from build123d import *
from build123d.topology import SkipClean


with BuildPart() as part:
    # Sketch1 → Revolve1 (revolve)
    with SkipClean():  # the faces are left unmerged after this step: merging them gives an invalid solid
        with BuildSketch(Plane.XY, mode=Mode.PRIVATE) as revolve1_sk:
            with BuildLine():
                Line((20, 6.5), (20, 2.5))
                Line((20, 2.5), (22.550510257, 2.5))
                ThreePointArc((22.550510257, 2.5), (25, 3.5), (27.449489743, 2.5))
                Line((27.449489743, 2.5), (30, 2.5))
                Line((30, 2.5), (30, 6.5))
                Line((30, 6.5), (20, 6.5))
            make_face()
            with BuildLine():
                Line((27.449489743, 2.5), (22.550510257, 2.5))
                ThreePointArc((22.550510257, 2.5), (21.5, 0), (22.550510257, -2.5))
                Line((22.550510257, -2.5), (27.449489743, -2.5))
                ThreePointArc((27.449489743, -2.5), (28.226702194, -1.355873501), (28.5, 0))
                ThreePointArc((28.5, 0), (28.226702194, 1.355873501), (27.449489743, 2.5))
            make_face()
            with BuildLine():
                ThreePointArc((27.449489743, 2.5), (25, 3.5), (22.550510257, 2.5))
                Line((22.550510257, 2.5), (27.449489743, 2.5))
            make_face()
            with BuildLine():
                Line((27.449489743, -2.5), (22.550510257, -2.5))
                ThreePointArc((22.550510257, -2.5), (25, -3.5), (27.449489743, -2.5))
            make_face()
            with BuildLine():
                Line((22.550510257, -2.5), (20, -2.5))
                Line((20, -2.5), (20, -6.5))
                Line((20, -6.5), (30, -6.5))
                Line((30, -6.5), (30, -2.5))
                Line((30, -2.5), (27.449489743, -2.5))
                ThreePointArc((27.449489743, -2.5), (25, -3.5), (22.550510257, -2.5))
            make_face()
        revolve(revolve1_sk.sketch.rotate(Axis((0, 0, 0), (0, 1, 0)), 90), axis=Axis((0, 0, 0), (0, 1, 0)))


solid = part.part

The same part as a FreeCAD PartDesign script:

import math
import FreeCAD as App
import Part
import Sketcher

V = App.Vector

doc = App.newDocument("Part")
body = doc.addObject("PartDesign::Body", "Body")

# Sketch on XY plane
sketch1 = body.newObject("Sketcher::SketchObject", "Sketch")
sketch1.AttachmentSupport = (doc.getObject("XY_Plane"), [""])
sketch1.MapMode = "FlatFace"
sketch1.addGeometry(Part.LineSegment(V(20, 6.5, 0), V(20, 2.5, 0)), False)
sketch1.addGeometry(Part.LineSegment(V(20, 2.5, 0), V(22.6, 2.5, 0)), False)
sketch1.addGeometry(Part.ArcOfCircle(Part.Circle(V(25, 0, 0), V(0, 0, 1), 3.5), math.radians(46), math.radians(134)), False)
sketch1.addGeometry(Part.LineSegment(V(27.4, 2.5, 0), V(30, 2.5, 0)), False)
sketch1.addGeometry(Part.LineSegment(V(30, 2.5, 0), V(30, 6.5, 0)), False)
sketch1.addGeometry(Part.LineSegment(V(30, 6.5, 0), V(20, 6.5, 0)), False)
sketch1.addGeometry(Part.LineSegment(V(27.4, 2.5, 0), V(22.6, 2.5, 0)), False)
sketch1.addGeometry(Part.ArcOfCircle(Part.Circle(V(25, 0, 0), V(0, 0, 1), 3.5), math.radians(134), math.radians(226)), False)
sketch1.addGeometry(Part.LineSegment(V(22.6, -2.5, 0), V(27.4, -2.5, 0)), False)
sketch1.addGeometry(Part.ArcOfCircle(Part.Circle(V(25, 0, 0), V(0, 0, 1), 3.5), math.radians(-46), math.radians(0)), False)
sketch1.addGeometry(Part.ArcOfCircle(Part.Circle(V(25, 0, 0), V(0, 0, 1), 3.5), math.radians(0), math.radians(46)), False)
sketch1.addGeometry(Part.ArcOfCircle(Part.Circle(V(25, 0, 0), V(0, 0, 1), 3.5), math.radians(46), math.radians(134)), False)
sketch1.addGeometry(Part.LineSegment(V(22.6, 2.5, 0), V(27.4, 2.5, 0)), False)
sketch1.addGeometry(Part.LineSegment(V(27.4, -2.5, 0), V(22.6, -2.5, 0)), False)
sketch1.addGeometry(Part.ArcOfCircle(Part.Circle(V(25, 0, 0), V(0, 0, 1), 3.5), math.radians(-134), math.radians(-46)), False)
sketch1.addGeometry(Part.LineSegment(V(22.6, -2.5, 0), V(20, -2.5, 0)), False)
sketch1.addGeometry(Part.LineSegment(V(20, -2.5, 0), V(20, -6.5, 0)), False)
sketch1.addGeometry(Part.LineSegment(V(20, -6.5, 0), V(30, -6.5, 0)), False)
sketch1.addGeometry(Part.LineSegment(V(30, -6.5, 0), V(30, -2.5, 0)), False)
sketch1.addGeometry(Part.LineSegment(V(30, -2.5, 0), V(27.4, -2.5, 0)), False)
sketch1.addGeometry(Part.ArcOfCircle(Part.Circle(V(25, 0, 0), V(0, 0, 1), 3.5), math.radians(-134), math.radians(-46)), False)
sketch1.addConstraint(Sketcher.Constraint("Coincident", 0, 2, 1, 1))
sketch1.addConstraint(Sketcher.Constraint("Coincident", 1, 2, 2, 2))
sketch1.addConstraint(Sketcher.Constraint("Coincident", 2, 1, 3, 1))
sketch1.addConstraint(Sketcher.Constraint("Coincident", 3, 2, 4, 1))
sketch1.addConstraint(Sketcher.Constraint("Coincident", 4, 2, 5, 1))
sketch1.addConstraint(Sketcher.Constraint("Coincident", 5, 2, 0, 1))
sketch1.addConstraint(Sketcher.Constraint("Coincident", 6, 2, 7, 1))
sketch1.addConstraint(Sketcher.Constraint("Coincident", 7, 2, 8, 1))
sketch1.addConstraint(Sketcher.Constraint("Coincident", 8, 2, 9, 1))
sketch1.addConstraint(Sketcher.Constraint("Tangent", 9, 2, 10, 1))
sketch1.addConstraint(Sketcher.Constraint("Coincident", 10, 2, 6, 1))
sketch1.addConstraint(Sketcher.Constraint("Coincident", 11, 1, 12, 2))
sketch1.addConstraint(Sketcher.Constraint("Coincident", 12, 1, 11, 2))
sketch1.addConstraint(Sketcher.Constraint("Coincident", 13, 1, 14, 2))
sketch1.addConstraint(Sketcher.Constraint("Coincident", 14, 1, 13, 2))
sketch1.addConstraint(Sketcher.Constraint("Coincident", 15, 2, 16, 1))
sketch1.addConstraint(Sketcher.Constraint("Coincident", 16, 2, 17, 1))
sketch1.addConstraint(Sketcher.Constraint("Coincident", 17, 2, 18, 1))
sketch1.addConstraint(Sketcher.Constraint("Coincident", 18, 2, 19, 1))
sketch1.addConstraint(Sketcher.Constraint("Coincident", 19, 2, 20, 2))
sketch1.addConstraint(Sketcher.Constraint("Coincident", 20, 1, 15, 1))
sketch1.addConstraint(Sketcher.Constraint("Vertical", 0))
sketch1.addConstraint(Sketcher.Constraint("Horizontal", 1))
sketch1.addConstraint(Sketcher.Constraint("Horizontal", 3))
sketch1.addConstraint(Sketcher.Constraint("Vertical", 4))
sketch1.addConstraint(Sketcher.Constraint("Horizontal", 5))
sketch1.addConstraint(Sketcher.Constraint("Horizontal", 6))
sketch1.addConstraint(Sketcher.Constraint("Horizontal", 8))
sketch1.addConstraint(Sketcher.Constraint("Horizontal", 12))
sketch1.addConstraint(Sketcher.Constraint("Horizontal", 13))
sketch1.addConstraint(Sketcher.Constraint("Horizontal", 15))
sketch1.addConstraint(Sketcher.Constraint("Vertical", 16))
sketch1.addConstraint(Sketcher.Constraint("Horizontal", 17))
sketch1.addConstraint(Sketcher.Constraint("Vertical", 18))
sketch1.addConstraint(Sketcher.Constraint("Horizontal", 19))
sketch1.addConstraint(Sketcher.Constraint("Coincident", 7, 3, 2, 3))
sketch1.addConstraint(Sketcher.Constraint("Coincident", 9, 3, 2, 3))
sketch1.addConstraint(Sketcher.Constraint("Coincident", 11, 3, 2, 3))
sketch1.addConstraint(Sketcher.Constraint("Coincident", 14, 3, 2, 3))
sketch1.addConstraint(Sketcher.Constraint("Coincident", 20, 3, 2, 3))
sketch1.addConstraint(Sketcher.Constraint("Coincident", 6, 2, 1, 2))
sketch1.addConstraint(Sketcher.Constraint("Coincident", 10, 2, 2, 1))
sketch1.addConstraint(Sketcher.Constraint("Coincident", 11, 1, 2, 1))
sketch1.addConstraint(Sketcher.Constraint("Coincident", 13, 1, 8, 2))
sketch1.addConstraint(Sketcher.Constraint("Coincident", 19, 2, 8, 2))
sketch1.addConstraint(Sketcher.Constraint("Coincident", 20, 1, 7, 2))
sketch1.addConstraint(Sketcher.Constraint("Symmetric", 1, 2, 7, 2, -1))
sketch1.addConstraint(Sketcher.Constraint("Symmetric", 5, 2, 16, 2, -1))
sketch1.addConstraint(Sketcher.Constraint("PointOnObject", 9, 2, -1))
sketch1.addConstraint(Sketcher.Constraint("Vertical", 4, 2, 17, 2))
sketch1.addConstraint(Sketcher.Constraint("Equal", 1, 3))
sketch1.addConstraint(Sketcher.Constraint("Radius", 2, 3.5))
sketch1.addConstraint(Sketcher.Constraint("DistanceX", 5, 2, 5, 1, 10.0))
sketch1.addConstraint(Sketcher.Constraint("DistanceY", 0, 2, 0, 1, 4.0))
sketch1.addConstraint(Sketcher.Constraint("DistanceX", -1, 1, 2, 3, 25.0))
sketch1.addConstraint(Sketcher.Constraint("DistanceY", 15, 2, 0, 2, 5.0))
revolution = body.newObject("PartDesign::Revolution", "Revolution")
revolution.Profile = sketch1
revolution.ReferenceAxis = (sketch1, ["V_Axis"])
revolution.Angle = 360

doc.recompute()
